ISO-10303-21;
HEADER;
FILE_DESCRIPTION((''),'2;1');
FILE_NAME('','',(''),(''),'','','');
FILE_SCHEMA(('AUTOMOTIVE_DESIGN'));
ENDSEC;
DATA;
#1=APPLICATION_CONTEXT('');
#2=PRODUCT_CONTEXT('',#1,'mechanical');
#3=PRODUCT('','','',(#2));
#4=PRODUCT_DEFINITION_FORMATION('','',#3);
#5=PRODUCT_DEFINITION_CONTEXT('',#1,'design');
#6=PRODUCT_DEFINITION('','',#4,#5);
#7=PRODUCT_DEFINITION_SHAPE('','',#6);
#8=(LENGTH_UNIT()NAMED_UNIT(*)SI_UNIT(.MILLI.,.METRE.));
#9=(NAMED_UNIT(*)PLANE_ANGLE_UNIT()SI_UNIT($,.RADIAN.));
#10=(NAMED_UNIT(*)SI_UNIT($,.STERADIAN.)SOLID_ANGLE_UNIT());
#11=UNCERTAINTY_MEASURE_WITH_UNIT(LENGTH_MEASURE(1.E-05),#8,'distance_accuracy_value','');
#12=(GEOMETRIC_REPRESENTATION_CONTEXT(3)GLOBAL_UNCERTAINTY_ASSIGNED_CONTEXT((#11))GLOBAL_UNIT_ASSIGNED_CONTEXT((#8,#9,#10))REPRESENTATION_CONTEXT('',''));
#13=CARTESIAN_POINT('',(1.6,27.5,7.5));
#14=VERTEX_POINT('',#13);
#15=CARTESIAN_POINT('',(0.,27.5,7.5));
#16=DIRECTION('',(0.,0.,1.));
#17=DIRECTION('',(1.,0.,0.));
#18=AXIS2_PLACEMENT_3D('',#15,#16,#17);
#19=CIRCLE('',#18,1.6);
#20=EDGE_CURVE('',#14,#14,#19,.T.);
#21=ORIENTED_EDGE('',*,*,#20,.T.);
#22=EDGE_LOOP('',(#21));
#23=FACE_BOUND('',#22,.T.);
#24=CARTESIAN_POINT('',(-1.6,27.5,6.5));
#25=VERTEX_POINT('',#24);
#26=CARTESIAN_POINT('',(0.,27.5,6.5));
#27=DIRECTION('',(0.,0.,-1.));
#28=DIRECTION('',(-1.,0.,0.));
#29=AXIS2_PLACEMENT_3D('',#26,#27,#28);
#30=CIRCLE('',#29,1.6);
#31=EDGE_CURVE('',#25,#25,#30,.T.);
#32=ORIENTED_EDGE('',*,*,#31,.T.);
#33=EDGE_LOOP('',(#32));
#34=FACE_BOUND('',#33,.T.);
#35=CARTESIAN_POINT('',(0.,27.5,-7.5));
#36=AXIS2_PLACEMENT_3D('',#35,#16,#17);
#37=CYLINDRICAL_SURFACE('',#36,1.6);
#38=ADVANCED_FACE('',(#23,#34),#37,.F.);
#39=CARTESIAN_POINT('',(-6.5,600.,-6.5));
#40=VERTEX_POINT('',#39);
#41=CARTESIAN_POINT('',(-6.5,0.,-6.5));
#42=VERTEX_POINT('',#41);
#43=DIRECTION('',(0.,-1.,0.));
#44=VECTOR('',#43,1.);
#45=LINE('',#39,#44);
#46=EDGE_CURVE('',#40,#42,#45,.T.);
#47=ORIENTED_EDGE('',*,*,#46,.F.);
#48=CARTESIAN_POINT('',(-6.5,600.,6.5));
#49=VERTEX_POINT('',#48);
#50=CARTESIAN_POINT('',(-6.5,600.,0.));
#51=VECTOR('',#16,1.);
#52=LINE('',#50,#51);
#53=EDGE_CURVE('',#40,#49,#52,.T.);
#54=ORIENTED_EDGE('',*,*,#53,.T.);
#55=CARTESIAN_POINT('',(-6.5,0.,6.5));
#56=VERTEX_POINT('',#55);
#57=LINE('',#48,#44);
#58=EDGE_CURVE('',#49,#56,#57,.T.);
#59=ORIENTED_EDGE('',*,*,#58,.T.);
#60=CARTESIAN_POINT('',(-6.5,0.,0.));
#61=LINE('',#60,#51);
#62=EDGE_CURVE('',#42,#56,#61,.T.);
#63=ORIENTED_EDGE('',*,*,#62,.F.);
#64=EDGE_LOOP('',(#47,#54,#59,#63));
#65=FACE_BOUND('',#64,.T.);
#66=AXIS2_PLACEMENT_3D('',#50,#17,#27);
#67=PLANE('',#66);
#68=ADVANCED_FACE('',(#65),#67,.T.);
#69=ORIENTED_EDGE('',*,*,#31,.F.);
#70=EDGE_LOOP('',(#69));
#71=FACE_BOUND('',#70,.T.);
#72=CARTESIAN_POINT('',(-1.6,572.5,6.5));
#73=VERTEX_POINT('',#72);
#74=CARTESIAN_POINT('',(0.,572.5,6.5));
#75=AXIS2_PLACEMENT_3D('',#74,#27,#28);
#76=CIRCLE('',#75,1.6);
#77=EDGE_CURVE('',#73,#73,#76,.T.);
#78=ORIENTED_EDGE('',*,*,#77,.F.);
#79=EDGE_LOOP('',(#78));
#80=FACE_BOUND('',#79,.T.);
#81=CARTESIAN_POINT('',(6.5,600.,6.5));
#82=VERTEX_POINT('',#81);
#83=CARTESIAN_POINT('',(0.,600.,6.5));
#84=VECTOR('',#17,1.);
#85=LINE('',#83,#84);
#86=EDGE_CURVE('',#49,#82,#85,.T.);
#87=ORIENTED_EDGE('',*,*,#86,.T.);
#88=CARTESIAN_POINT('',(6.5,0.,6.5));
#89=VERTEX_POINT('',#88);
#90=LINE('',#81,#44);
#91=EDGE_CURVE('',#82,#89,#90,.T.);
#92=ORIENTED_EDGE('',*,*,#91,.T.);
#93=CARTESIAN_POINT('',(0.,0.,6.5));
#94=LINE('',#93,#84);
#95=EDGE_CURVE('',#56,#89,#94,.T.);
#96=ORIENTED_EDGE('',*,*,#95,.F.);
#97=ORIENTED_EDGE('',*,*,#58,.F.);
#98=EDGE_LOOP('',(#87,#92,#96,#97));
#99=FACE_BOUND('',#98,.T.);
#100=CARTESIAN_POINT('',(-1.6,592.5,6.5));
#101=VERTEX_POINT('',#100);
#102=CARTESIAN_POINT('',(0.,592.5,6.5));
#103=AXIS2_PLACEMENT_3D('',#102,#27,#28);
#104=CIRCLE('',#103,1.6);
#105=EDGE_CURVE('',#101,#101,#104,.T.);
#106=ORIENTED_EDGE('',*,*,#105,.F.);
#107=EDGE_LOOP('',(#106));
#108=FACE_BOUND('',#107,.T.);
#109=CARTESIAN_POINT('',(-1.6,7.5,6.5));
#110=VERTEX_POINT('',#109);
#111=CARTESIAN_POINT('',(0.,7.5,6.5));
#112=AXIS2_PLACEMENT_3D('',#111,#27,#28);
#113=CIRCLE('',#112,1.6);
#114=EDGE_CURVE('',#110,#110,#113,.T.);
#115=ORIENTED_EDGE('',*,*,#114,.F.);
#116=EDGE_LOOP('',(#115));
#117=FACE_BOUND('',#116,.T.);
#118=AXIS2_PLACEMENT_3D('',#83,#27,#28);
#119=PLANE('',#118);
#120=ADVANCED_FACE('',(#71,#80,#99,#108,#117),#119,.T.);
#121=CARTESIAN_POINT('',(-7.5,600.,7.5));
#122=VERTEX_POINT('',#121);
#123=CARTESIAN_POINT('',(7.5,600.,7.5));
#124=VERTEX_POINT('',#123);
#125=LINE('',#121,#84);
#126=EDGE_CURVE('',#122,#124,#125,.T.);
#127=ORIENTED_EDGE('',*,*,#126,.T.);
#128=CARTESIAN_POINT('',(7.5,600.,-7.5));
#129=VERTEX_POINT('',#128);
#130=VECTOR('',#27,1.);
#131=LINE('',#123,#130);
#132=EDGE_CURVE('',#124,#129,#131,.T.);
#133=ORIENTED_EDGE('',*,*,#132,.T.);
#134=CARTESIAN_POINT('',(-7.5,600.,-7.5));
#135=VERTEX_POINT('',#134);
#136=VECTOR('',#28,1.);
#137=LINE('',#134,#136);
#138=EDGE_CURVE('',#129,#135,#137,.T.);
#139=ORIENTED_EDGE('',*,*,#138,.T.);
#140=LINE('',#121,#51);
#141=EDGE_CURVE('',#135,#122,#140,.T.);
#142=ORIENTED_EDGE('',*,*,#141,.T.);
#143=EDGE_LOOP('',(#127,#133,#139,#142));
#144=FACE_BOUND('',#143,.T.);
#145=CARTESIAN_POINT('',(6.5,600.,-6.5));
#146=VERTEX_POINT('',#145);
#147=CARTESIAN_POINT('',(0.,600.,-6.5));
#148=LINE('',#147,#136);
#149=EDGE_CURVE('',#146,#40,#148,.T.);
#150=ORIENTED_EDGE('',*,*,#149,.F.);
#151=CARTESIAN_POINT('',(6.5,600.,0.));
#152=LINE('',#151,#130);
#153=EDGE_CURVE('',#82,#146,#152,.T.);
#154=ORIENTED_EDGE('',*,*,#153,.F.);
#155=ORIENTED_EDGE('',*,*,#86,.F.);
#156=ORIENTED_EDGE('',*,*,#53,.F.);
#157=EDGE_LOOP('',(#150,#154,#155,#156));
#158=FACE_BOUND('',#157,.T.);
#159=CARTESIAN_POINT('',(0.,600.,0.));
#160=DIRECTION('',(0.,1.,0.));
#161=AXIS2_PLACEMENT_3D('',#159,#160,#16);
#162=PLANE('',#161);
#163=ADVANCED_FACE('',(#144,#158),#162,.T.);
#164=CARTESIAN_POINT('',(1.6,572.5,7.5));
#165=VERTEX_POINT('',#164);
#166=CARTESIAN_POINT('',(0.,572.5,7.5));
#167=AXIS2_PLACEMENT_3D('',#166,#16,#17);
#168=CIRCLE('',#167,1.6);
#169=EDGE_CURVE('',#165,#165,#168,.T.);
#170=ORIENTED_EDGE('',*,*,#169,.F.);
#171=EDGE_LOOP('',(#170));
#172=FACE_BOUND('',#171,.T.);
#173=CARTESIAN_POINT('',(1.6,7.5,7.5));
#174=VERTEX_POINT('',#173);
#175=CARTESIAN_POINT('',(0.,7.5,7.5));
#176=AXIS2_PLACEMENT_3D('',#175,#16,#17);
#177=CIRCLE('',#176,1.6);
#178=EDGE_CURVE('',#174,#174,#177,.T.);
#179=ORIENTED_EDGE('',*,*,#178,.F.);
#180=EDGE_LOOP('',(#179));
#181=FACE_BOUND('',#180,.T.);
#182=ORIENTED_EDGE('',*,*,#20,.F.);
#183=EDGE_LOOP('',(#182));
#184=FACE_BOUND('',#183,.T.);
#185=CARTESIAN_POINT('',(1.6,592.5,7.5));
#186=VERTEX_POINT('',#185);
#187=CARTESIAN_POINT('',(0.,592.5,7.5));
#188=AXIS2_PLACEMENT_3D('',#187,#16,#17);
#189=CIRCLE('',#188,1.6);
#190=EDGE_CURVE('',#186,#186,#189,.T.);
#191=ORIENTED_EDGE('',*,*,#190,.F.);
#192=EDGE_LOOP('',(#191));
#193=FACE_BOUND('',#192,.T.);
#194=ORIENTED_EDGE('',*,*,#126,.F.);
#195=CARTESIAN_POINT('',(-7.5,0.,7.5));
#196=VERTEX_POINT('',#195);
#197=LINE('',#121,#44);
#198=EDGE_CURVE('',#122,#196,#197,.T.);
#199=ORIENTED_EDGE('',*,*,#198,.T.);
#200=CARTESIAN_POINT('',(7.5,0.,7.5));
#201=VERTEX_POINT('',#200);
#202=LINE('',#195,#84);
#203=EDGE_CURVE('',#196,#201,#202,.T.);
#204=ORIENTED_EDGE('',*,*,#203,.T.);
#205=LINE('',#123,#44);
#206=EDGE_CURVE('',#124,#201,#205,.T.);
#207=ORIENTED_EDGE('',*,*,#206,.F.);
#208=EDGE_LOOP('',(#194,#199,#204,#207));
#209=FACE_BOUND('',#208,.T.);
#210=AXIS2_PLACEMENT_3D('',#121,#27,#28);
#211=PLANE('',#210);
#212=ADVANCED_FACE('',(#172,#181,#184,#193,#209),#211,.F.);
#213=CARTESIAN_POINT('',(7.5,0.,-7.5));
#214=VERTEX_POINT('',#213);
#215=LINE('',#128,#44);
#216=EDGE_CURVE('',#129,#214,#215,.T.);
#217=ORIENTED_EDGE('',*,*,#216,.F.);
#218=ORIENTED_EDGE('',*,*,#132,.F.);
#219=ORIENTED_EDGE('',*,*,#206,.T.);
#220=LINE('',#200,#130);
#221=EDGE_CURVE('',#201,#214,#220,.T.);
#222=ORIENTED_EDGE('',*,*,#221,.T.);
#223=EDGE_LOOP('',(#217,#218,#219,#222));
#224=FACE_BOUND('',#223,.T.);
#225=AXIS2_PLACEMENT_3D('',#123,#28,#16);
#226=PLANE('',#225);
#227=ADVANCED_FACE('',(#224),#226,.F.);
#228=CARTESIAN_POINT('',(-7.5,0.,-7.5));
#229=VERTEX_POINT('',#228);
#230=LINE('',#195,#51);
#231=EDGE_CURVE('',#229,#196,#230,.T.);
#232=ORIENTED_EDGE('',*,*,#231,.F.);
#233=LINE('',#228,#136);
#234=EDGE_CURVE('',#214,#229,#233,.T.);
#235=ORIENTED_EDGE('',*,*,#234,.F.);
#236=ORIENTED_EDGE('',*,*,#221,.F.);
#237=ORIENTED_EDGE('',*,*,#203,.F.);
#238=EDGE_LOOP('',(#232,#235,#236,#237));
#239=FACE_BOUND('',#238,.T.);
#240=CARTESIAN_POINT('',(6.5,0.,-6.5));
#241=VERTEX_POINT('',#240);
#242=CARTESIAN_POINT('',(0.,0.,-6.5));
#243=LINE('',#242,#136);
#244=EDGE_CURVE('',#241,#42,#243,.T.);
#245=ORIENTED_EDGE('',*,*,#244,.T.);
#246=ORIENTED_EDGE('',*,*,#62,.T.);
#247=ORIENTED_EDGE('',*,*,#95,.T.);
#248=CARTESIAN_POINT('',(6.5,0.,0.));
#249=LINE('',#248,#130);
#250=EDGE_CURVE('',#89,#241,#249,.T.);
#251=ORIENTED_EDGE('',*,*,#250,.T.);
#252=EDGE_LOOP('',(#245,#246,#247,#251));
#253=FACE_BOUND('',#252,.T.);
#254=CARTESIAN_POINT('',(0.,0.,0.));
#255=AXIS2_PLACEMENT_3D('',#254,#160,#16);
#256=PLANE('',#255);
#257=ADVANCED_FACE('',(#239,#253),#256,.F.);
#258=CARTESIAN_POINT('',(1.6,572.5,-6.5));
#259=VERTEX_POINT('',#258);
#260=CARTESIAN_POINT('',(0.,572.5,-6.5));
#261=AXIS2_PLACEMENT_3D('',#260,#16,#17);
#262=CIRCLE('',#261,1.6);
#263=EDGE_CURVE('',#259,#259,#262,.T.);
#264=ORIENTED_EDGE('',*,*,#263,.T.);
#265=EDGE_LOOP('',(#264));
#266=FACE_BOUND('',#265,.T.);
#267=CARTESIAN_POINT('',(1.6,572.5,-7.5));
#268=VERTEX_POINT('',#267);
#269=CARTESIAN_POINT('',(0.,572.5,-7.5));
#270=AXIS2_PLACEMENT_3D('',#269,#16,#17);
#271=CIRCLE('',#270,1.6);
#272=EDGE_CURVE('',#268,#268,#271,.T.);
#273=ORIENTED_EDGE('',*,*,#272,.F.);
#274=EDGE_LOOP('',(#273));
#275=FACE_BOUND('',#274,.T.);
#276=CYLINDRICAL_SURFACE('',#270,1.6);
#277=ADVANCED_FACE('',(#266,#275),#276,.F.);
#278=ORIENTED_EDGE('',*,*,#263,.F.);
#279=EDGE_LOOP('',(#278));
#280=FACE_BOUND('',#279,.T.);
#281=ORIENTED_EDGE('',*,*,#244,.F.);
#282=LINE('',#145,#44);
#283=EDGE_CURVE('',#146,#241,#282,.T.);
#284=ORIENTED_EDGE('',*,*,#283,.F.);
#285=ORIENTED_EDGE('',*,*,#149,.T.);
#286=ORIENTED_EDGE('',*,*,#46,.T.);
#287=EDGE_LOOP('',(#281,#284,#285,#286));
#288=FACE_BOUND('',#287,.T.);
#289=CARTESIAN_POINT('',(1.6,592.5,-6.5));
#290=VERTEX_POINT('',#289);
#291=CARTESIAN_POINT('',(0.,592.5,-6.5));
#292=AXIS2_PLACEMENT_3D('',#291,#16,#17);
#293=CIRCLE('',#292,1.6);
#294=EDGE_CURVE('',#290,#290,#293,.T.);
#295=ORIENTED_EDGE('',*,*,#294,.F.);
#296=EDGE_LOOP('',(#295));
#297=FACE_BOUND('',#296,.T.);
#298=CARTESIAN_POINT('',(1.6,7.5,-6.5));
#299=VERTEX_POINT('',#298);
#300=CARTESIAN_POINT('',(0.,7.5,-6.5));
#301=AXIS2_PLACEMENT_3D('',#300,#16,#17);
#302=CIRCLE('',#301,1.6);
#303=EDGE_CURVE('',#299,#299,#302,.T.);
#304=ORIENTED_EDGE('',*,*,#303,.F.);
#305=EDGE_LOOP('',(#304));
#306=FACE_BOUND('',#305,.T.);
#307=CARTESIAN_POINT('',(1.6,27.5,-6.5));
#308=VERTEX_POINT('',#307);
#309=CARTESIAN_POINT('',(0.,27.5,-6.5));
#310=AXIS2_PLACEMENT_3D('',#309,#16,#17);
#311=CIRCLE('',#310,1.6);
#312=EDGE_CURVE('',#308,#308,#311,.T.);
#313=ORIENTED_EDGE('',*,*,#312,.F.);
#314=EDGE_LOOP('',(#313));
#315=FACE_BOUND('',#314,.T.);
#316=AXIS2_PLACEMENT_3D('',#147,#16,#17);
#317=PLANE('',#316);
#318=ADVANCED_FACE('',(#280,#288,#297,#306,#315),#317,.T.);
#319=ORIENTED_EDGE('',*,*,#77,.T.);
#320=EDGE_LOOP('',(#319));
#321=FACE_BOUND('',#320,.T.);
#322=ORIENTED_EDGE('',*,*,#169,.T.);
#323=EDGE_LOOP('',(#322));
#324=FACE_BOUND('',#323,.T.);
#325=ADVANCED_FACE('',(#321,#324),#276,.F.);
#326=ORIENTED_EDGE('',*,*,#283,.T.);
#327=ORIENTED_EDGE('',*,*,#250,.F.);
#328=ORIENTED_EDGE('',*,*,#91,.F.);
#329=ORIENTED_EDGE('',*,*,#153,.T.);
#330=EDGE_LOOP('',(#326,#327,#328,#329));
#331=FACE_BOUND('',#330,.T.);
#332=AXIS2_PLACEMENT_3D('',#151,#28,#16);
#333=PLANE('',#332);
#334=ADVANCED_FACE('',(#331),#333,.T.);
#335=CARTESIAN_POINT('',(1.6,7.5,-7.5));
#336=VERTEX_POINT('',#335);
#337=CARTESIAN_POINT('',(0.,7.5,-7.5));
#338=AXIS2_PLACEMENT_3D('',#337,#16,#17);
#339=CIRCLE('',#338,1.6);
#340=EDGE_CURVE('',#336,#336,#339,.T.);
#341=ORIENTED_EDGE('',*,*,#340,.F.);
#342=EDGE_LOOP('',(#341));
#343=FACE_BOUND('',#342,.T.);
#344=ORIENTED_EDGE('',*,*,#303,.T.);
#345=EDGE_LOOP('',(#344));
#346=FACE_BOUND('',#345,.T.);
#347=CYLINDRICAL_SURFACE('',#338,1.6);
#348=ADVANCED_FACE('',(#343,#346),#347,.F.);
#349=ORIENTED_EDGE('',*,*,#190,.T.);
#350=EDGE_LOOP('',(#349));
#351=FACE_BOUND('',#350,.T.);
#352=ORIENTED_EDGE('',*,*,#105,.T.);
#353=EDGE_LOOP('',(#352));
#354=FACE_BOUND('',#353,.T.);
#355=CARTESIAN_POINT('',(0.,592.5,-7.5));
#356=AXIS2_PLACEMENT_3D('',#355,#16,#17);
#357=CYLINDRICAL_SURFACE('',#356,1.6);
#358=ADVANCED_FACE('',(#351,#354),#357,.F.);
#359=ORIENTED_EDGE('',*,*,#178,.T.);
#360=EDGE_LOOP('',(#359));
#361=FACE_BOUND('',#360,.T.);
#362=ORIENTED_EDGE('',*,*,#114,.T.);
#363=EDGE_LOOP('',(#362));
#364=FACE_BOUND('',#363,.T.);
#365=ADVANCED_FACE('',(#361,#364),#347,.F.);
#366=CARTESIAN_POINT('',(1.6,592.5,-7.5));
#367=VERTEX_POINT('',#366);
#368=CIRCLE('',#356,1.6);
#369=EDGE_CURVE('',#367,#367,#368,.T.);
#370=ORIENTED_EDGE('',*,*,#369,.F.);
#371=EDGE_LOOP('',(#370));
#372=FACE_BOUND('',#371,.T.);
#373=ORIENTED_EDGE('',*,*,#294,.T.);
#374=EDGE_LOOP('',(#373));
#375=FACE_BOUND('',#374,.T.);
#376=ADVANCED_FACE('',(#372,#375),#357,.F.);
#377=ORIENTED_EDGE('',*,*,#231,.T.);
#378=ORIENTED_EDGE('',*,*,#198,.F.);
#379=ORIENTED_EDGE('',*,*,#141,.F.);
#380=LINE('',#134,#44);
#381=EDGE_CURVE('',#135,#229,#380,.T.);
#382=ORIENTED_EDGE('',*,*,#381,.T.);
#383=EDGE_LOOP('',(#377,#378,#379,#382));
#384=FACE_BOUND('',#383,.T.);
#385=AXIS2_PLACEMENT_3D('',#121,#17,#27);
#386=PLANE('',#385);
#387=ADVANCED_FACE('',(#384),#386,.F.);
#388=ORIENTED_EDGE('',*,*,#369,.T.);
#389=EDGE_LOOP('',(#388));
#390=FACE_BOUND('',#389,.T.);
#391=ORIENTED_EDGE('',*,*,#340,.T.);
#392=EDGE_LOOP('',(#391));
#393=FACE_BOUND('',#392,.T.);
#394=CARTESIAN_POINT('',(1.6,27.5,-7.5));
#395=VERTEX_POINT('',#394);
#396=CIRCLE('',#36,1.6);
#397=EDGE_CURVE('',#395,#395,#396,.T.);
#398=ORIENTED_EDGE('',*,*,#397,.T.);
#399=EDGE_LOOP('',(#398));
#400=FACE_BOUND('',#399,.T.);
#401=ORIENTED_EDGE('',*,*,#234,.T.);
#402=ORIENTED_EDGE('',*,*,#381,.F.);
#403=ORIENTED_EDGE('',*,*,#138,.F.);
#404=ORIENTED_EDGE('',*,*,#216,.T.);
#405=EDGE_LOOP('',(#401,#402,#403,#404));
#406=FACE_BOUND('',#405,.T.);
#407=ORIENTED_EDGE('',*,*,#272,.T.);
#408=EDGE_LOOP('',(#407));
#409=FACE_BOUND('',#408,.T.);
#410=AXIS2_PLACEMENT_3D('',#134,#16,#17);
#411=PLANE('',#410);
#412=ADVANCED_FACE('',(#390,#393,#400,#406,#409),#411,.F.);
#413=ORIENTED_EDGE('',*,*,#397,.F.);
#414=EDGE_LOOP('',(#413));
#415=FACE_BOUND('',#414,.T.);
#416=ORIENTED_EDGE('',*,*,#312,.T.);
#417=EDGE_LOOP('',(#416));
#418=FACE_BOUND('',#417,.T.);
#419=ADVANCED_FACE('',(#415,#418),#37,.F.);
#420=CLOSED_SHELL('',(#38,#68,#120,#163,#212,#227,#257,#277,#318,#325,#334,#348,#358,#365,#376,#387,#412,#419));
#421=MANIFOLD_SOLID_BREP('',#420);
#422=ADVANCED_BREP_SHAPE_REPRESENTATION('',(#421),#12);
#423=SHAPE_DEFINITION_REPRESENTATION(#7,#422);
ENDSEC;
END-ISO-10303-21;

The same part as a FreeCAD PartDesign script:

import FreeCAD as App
import Part
import Sketcher
Q = App.Units.Quantity

doc = App.newDocument("Part")
body = doc.addObject("PartDesign::Body", "Body")

sketch1 = body.newObject("Sketcher::SketchObject", "Sketch")
sketch1.AttachmentSupport = (doc.getObject("XZ_Plane"), [""])
sketch1.MapMode = "FlatFace"
sketch1.addGeometry([
    Part.LineSegment(App.Vector(-8, -8, 0), App.Vector(-8, 8, 0)),
    Part.LineSegment(App.Vector(-8, 8, 0), App.Vector(8, 8, 0)),
    Part.LineSegment(App.Vector(8, 8, 0), App.Vector(8, -8, 0)),
    Part.LineSegment(App.Vector(8, -8, 0), App.Vector(-8, -8, 0)),
    Part.LineSegment(App.Vector(6, 6, 0), App.Vector(-6, 6, 0)),
    Part.LineSegment(App.Vector(-6, 6, 0), App.Vector(-6, -6, 0)),
    Part.LineSegment(App.Vector(-6, -6, 0), App.Vector(6, -6, 0)),
    Part.LineSegment(App.Vector(6, -6, 0), App.Vector(6, 6, 0)),
], False)
sketch1.addConstraint([
    Sketcher.Constraint("Coincident", 0, 2, 1, 1),
    Sketcher.Constraint("Coincident", 1, 2, 2, 1),
    Sketcher.Constraint("Coincident", 2, 2, 3, 1),
    Sketcher.Constraint("Coincident", 3, 2, 0, 1),
    Sketcher.Constraint("Coincident", 4, 2, 5, 1),
    Sketcher.Constraint("Coincident", 5, 2, 6, 1),
    Sketcher.Constraint("Coincident", 6, 2, 7, 1),
    Sketcher.Constraint("Coincident", 7, 2, 4, 1),
    Sketcher.Constraint("Vertical", 0),
    Sketcher.Constraint("Horizontal", 1),
    Sketcher.Constraint("Vertical", 2),
    Sketcher.Constraint("Horizontal", 3),
    Sketcher.Constraint("Horizontal", 4),
    Sketcher.Constraint("Vertical", 5),
    Sketcher.Constraint("Horizontal", 6),
    Sketcher.Constraint("Vertical", 7),
    Sketcher.Constraint("Symmetric", 0, 2, 2, 2, -1, 1),
    Sketcher.Constraint("Symmetric", 4, 2, 6, 2, -1, 1),
    Sketcher.Constraint("Equal", 3, 0),
    Sketcher.Constraint("Equal", 6, 5),
    Sketcher.Constraint("DistanceX", 1, 1, 1, 2, Q("15 mm")),
    Sketcher.Constraint("DistanceX", 4, 2, 4, 1, Q("13 mm")),
])
pad1 = body.newObject("PartDesign::Pad", "Pad")
pad1.Profile = sketch1
pad1.Length = 600
pad1.Reversed = True

sketch2 = body.newObject("Sketcher::SketchObject", "Sketch001")
sketch2.AttachmentSupport = (doc.getObject("XY_Plane"), [""])
sketch2.MapMode = "FlatFace"
sketch2.AttachmentOffset = App.Placement(App.Vector(0, 0, 7.5), App.Rotation())
sketch2.addGeometry([
    Part.Circle(App.Vector(0, 7.5, 0), App.Vector(0, 0, 1), 1.6),
    Part.Circle(App.Vector(0, 27.5, 0), App.Vector(0, 0, 1), 1.6),
    Part.Circle(App.Vector(0, 572.5, 0), App.Vector(0, 0, 1), 1.6),
    Part.Circle(App.Vector(0, 592.5, 0), App.Vector(0, 0, 1), 1.6),
], False)
sketch2.addConstraint([
    Sketcher.Constraint("Equal", 0, 1),
    Sketcher.Constraint("Equal", 1, 2),
    Sketcher.Constraint("Equal", 2, 3),
    Sketcher.Constraint("PointOnObject", 0, 3, -2),
    Sketcher.Constraint("PointOnObject", 1, 3, -2),
    Sketcher.Constraint("PointOnObject", 2, 3, -2),
    Sketcher.Constraint("PointOnObject", 3, 3, -2),
    Sketcher.Constraint("Diameter", 0, Q("3.2 mm")),
    Sketcher.Constraint("DistanceY", 0, 3, 1, 3, Q("20 mm")),
    Sketcher.Constraint("DistanceY", 1, 3, 2, 3, Q("545 mm")),
    Sketcher.Constraint("DistanceY", 2, 3, 3, 3, Q("20 mm")),
    Sketcher.Constraint("DistanceY", -1, 1, 0, 3, Q("7.5 mm")),
])
pocket1 = body.newObject("PartDesign::Pocket", "Pocket")
pocket1.Profile = sketch2
pocket1.Type = "ThroughAll"

doc.recompute()
